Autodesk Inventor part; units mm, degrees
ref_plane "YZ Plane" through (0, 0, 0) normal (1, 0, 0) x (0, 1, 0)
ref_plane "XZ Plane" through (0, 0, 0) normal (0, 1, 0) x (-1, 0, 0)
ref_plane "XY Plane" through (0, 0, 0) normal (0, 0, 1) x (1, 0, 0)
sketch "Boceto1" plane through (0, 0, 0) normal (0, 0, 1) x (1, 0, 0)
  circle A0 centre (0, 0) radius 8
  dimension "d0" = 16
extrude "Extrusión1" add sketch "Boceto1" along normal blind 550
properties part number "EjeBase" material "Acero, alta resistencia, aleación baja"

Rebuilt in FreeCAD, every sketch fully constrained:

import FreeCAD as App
import Part
import Sketcher

V = App.Vector

doc = App.newDocument("Part")
params = doc.addObject("Spreadsheet::Sheet", "Params")
for row, (alias, value) in enumerate([
    ("sketch1_diameter", "16 mm"),
    ("pad1_length", "550 mm"),
], start=1):
    params.set(f"A{row}", alias)
    params.set(f"B{row}", "=" + value)
    params.setAlias(f"B{row}", alias)

body = doc.addObject("PartDesign::Body", "Body")

sketch1 = body.newObject("Sketcher::SketchObject", "Sketch")
sketch1.AttachmentSupport = (doc.getObject("XY_Plane"), [""])
sketch1.MapMode = "FlatFace"
sketch1.addGeometry(Part.Circle(V(0, 0, 0), V(0, 0, 1), 8), False)
sketch1.addConstraint([
    Sketcher.Constraint("Coincident", 0, 3, -1, 1),
    Sketcher.Constraint("Diameter", 0, 16.0),
])
sketch1.setExpression("Constraints[1]", "Params.sketch1_diameter")
pad1 = body.newObject("PartDesign::Pad", "Pad")
pad1.Profile = sketch1
pad1.setExpression("Length", "Params.pad1_length")

doc.recompute()
